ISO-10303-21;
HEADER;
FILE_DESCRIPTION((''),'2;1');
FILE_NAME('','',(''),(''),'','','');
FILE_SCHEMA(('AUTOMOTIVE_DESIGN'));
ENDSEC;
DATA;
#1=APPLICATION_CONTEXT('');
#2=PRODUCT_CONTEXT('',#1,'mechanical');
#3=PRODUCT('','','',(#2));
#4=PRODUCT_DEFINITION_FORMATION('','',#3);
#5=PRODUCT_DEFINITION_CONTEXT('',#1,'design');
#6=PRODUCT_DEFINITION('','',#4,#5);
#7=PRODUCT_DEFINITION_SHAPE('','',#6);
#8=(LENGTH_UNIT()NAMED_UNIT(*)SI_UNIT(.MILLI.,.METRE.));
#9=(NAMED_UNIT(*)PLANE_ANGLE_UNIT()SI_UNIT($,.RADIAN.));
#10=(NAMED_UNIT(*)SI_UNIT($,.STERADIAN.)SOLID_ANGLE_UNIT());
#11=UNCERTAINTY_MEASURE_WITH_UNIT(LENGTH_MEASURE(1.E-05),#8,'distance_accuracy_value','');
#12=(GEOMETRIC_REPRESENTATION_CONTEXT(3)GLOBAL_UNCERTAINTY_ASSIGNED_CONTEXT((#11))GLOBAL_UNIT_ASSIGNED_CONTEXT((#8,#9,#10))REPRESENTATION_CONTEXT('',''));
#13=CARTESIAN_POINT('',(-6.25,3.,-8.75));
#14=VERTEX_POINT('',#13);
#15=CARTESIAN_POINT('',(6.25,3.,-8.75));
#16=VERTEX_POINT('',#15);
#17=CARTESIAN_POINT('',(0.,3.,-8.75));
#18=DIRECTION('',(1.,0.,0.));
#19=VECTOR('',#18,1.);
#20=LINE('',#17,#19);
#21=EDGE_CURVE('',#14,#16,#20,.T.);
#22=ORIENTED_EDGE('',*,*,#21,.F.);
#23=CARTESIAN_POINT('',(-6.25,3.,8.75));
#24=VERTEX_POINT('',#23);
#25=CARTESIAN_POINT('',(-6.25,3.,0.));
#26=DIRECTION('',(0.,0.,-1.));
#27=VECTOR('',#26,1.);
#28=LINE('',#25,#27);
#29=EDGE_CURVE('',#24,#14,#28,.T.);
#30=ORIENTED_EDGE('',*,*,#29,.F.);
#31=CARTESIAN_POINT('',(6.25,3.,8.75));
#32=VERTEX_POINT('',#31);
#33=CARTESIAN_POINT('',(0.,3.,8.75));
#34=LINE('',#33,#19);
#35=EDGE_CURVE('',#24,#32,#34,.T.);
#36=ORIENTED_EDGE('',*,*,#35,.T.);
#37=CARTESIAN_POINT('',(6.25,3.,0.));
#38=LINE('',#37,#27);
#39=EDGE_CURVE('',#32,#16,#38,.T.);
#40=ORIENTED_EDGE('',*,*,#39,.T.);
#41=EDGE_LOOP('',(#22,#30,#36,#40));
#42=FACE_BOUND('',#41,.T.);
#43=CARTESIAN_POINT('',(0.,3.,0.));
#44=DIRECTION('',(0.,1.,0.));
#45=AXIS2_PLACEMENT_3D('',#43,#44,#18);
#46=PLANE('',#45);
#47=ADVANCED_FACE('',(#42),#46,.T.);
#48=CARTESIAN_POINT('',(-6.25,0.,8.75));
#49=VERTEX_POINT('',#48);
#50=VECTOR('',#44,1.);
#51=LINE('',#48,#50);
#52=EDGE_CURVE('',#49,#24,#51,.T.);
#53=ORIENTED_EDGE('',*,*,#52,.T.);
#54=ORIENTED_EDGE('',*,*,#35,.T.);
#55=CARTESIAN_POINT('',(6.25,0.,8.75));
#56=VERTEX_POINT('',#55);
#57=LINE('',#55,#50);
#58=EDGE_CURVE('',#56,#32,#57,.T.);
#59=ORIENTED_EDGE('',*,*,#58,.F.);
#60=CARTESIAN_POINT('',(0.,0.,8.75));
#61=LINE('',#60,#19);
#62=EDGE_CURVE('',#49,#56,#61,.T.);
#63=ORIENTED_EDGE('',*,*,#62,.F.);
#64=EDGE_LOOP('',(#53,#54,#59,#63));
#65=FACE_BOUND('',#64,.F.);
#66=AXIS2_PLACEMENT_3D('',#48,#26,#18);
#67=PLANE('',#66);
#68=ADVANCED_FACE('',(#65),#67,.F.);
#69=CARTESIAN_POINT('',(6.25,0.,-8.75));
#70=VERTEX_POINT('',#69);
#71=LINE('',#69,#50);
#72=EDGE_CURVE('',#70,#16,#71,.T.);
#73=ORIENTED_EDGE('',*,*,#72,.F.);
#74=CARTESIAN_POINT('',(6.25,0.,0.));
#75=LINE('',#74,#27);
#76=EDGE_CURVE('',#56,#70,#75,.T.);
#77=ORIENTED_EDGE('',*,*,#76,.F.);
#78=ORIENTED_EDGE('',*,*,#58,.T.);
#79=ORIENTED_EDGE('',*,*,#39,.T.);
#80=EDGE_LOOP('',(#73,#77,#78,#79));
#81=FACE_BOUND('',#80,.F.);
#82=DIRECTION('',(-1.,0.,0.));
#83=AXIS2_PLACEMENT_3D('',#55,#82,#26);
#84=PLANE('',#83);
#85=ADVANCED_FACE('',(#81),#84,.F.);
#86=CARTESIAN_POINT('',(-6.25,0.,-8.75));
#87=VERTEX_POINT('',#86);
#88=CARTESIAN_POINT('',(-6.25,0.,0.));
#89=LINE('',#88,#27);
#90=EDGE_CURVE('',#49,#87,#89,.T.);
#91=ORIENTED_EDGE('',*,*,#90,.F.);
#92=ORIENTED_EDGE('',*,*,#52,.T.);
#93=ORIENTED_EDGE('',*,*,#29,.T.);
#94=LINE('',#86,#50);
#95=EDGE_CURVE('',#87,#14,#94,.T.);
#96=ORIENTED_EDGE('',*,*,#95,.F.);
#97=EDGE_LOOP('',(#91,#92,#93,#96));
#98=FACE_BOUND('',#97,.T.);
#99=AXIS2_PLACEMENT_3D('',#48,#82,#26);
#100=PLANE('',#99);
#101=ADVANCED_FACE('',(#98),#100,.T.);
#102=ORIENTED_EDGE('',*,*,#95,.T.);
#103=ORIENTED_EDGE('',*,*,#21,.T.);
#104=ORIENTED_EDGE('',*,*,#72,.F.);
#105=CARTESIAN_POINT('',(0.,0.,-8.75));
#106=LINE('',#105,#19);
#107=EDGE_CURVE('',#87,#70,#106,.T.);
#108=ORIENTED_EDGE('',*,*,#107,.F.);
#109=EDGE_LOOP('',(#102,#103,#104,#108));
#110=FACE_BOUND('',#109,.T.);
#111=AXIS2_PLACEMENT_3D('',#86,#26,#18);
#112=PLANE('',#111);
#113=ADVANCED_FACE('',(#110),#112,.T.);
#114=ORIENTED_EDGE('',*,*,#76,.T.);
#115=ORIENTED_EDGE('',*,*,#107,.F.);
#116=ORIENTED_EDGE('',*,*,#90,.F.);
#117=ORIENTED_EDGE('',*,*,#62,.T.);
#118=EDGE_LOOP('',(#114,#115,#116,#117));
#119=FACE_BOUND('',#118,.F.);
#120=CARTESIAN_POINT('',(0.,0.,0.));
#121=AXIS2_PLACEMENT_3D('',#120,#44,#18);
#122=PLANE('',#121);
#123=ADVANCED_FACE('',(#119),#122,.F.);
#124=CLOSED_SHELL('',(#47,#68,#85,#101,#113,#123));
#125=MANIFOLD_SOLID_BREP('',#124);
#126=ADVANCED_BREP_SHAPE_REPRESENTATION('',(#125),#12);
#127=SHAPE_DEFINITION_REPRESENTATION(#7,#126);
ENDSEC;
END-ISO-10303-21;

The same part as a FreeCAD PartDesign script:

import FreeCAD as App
import Part
import Sketcher
from FreeCAD import Vector
Q = App.Units.Quantity


def add_polygon(sketch, points):
    """Adds a closed chain of lines whose ends are joined by coincident constraints."""
    first, n = sketch.GeometryCount, len(points)
    for a, b in zip(points, points[1:] + points[:1]):
        sketch.addGeometry(Part.LineSegment(App.Vector(*a, 0), App.Vector(*b, 0)), False)
    for i in range(n):
        sketch.addConstraint(Sketcher.Constraint("Coincident", first + i, 2, first + (i + 1) % n, 1))

doc = App.newDocument("Part")
body = doc.addObject("PartDesign::Body", "Body")

sketch1 = body.newObject("Sketcher::SketchObject", "Sketch")
sketch1.AttachmentSupport = (doc.getObject("XZ_Plane"), [""])
sketch1.MapMode = "FlatFace"
add_polygon(sketch1, [(-6, -9), (-6, 9), (6, 9), (6, -9)])
sketch1.addConstraint(Sketcher.Constraint("Vertical", 0))
sketch1.addConstraint(Sketcher.Constraint("Horizontal", 1))
sketch1.addConstraint(Sketcher.Constraint("Vertical", 2))
sketch1.addConstraint(Sketcher.Constraint("Horizontal", 3))
sketch1.addConstraint(Sketcher.Constraint("Symmetric", 0, 2, 2, 2, -1, 1))
sketch1.addConstraint(Sketcher.Constraint("DistanceX", 1, 1, 1, 2, Q("12.5 mm")))
sketch1.addConstraint(Sketcher.Constraint("DistanceY", 0, 1, 0, 2, Q("17.5 mm")))
pad1 = body.newObject("PartDesign::Pad", "Pad")
pad1.Profile = sketch1
pad1.Length = 3
pad1.Reversed = True

doc.recompute()
